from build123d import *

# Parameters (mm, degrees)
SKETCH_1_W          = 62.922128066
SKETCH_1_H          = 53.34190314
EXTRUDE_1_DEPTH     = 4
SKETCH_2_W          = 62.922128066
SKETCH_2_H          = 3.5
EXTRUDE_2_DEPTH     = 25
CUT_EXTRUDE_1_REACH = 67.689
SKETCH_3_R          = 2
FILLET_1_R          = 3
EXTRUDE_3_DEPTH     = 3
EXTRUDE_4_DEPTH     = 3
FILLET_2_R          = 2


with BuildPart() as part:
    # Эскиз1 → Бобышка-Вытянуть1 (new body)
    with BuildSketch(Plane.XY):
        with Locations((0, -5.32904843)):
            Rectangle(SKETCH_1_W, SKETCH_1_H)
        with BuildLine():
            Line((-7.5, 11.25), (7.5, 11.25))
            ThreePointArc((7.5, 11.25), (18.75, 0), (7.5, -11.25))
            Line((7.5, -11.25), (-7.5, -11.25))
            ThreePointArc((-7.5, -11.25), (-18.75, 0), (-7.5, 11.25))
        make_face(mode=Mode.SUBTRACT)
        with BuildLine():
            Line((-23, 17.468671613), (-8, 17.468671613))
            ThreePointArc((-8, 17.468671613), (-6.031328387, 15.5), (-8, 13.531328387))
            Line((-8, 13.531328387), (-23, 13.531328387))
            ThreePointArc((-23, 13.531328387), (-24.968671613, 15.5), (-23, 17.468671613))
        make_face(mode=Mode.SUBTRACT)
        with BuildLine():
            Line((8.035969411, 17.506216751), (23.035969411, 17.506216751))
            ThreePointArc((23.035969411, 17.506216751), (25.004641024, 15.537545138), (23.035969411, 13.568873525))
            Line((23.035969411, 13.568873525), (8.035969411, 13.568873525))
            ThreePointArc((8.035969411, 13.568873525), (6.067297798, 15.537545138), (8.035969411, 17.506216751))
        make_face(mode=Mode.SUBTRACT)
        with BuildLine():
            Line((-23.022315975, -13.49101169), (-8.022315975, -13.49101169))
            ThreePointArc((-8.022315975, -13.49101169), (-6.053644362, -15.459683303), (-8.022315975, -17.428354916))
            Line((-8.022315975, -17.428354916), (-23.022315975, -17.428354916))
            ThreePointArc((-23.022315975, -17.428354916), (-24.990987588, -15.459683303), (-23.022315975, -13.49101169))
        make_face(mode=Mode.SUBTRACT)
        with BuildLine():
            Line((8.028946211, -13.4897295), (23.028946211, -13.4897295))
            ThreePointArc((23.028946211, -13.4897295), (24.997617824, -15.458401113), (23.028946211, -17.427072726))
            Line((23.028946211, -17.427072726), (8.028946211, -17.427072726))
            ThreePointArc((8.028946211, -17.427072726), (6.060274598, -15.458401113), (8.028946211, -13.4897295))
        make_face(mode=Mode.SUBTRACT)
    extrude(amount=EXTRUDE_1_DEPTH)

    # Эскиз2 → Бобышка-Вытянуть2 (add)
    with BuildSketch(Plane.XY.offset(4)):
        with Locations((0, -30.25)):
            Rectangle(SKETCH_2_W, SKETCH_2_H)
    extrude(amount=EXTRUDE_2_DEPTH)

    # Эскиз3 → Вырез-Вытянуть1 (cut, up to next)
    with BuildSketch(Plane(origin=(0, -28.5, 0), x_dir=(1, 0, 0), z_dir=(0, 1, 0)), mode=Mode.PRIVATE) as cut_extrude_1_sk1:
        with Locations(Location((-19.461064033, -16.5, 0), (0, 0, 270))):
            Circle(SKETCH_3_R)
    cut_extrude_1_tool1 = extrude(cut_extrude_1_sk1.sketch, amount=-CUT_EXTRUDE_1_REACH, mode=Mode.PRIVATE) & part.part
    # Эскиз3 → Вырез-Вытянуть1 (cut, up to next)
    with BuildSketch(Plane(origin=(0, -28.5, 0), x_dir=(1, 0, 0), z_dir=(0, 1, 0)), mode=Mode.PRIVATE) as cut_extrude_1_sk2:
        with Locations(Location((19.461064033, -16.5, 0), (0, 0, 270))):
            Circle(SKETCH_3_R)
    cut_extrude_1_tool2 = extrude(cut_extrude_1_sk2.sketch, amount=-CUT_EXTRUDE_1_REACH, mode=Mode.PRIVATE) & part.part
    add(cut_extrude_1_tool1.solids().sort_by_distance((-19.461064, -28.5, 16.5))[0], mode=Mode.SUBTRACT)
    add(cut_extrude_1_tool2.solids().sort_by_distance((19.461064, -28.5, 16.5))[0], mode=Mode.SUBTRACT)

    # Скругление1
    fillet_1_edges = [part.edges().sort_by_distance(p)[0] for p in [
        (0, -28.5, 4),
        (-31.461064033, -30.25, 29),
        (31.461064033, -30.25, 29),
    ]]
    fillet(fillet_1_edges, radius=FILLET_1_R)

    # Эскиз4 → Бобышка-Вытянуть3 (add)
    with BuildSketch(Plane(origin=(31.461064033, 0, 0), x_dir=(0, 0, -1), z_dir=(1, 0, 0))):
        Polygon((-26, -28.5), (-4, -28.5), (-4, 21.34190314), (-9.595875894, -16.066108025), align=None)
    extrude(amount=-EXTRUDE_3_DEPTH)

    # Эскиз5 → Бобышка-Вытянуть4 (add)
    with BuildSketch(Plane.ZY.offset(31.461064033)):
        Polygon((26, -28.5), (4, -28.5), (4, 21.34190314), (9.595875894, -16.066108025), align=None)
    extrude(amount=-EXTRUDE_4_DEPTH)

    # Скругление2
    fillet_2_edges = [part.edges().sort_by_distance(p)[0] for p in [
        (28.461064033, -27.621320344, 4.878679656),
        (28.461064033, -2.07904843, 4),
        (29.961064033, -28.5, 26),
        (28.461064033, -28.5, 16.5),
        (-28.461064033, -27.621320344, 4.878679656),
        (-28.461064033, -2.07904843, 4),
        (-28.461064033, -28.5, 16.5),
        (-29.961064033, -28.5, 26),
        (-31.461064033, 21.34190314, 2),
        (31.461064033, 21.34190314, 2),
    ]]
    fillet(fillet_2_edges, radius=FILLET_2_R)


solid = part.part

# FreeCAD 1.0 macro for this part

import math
import FreeCAD as App
import Part
import Sketcher
from FreeCAD import Vector


def edges_at(feature, points):
    """Names of the edges that pass closest to the given points."""
    edges = feature.Shape.Edges
    near = lambda p: min(range(len(edges)), key=lambda i: edges[i].distToShape(Part.Vertex(*p))[0])
    return sorted({f"Edge{near(p) + 1}" for p in points})

doc = App.newDocument("Part")
body = doc.addObject("PartDesign::Body", "Body")

# Sketch on XY plane
sketch1 = doc.addObject("Sketcher::SketchObject", "Sketch")
body.addObject(sketch1)
sketch1.AttachmentSupport = (doc.XY_Plane, [""])
sketch1.MapMode = "FlatFace"
sketch1.addGeometry([
    Part.LineSegment(Vector(-31.461064, 21.341903, 0), Vector(-31.461064, -32, 0)),  # 0
    Part.LineSegment(Vector(-31.461064, -32, 0), Vector(31.461064, -32, 0)),  # 1
    Part.LineSegment(Vector(31.461064, -32, 0), Vector(31.461064, 21.341903, 0)),  # 2
    Part.LineSegment(Vector(31.461064, 21.341903, 0), Vector(-31.461064, 21.341903, 0)),  # 3
    Part.ArcOfCircle(Part.Circle(Vector(-23.022316, -15.459683, 0), Vector(0, 0, 1), 1.968672), math.radians(90), math.radians(270)),  # 4
    Part.LineSegment(Vector(-23.022316, -13.491012, 0), Vector(-8.022316, -13.491012, 0)),  # 5
    Part.ArcOfCircle(Part.Circle(Vector(-8.022316, -15.459683, 0), Vector(0, 0, 1), 1.968672), math.radians(-90), math.radians(90)),  # 6
    Part.LineSegment(Vector(-8.022316, -17.428355, 0), Vector(-23.022316, -17.428355, 0)),  # 7
    Part.ArcOfCircle(Part.Circle(Vector(-7.5, 0, 0), Vector(0, 0, 1), 11.25), math.radians(90), math.radians(270)),  # 8
    Part.LineSegment(Vector(-7.5, 11.25, 0), Vector(7.5, 11.25, 0)),  # 9
    Part.ArcOfCircle(Part.Circle(Vector(7.5, 0, 0), Vector(0, 0, 1), 11.25), math.radians(-90), math.radians(90)),  # 10
    Part.LineSegment(Vector(7.5, -11.25, 0), Vector(-7.5, -11.25, 0)),  # 11
    Part.ArcOfCircle(Part.Circle(Vector(8.028946, -15.458401, 0), Vector(0, 0, 1), 1.968672), math.radians(90), math.radians(270)),  # 12
    Part.LineSegment(Vector(8.028946, -13.489729, 0), Vector(23.028946, -13.489729, 0)),  # 13
    Part.ArcOfCircle(Part.Circle(Vector(23.028946, -15.458401, 0), Vector(0, 0, 1), 1.968672), math.radians(-90), math.radians(90)),  # 14
    Part.LineSegment(Vector(23.028946, -17.427073, 0), Vector(8.028946, -17.427073, 0)),  # 15
    Part.ArcOfCircle(Part.Circle(Vector(-23, 15.5, 0), Vector(0, 0, 1), 1.968672), math.radians(90), math.radians(270)),  # 16
    Part.LineSegment(Vector(-23, 17.468672, 0), Vector(-8, 17.468672, 0)),  # 17
    Part.ArcOfCircle(Part.Circle(Vector(-8, 15.5, 0), Vector(0, 0, 1), 1.968672), math.radians(-90), math.radians(90)),  # 18
    Part.LineSegment(Vector(-8, 13.531328, 0), Vector(-23, 13.531328, 0)),  # 19
    Part.ArcOfCircle(Part.Circle(Vector(8.035969, 15.537545, 0), Vector(0, 0, 1), 1.968672), math.radians(90), math.radians(270)),  # 20
    Part.LineSegment(Vector(8.035969, 17.506217, 0), Vector(23.035969, 17.506217, 0)),  # 21
    Part.ArcOfCircle(Part.Circle(Vector(23.035969, 15.537545, 0), Vector(0, 0, 1), 1.968672), math.radians(-90), math.radians(90)),  # 22
    Part.LineSegment(Vector(23.035969, 13.568874, 0), Vector(8.035969, 13.568874, 0)),  # 23
], False)
sketch1.addConstraint([
    Sketcher.Constraint("Coincident", 0, 2, 1, 1),
    Sketcher.Constraint("Coincident", 1, 2, 2, 1),
    Sketcher.Constraint("Coincident", 2, 2, 3, 1),
    Sketcher.Constraint("Coincident", 3, 2, 0, 1),
    Sketcher.Constraint("Tangent", 4, 1, 5, 1),
    Sketcher.Constraint("Tangent", 5, 2, 6, 2),
    Sketcher.Constraint("Tangent", 6, 1, 7, 1),
    Sketcher.Constraint("Tangent", 7, 2, 4, 2),
    Sketcher.Constraint("Tangent", 8, 1, 9, 1),
    Sketcher.Constraint("Tangent", 9, 2, 10, 2),
    Sketcher.Constraint("Tangent", 10, 1, 11, 1),
    Sketcher.Constraint("Tangent", 11, 2, 8, 2),
    Sketcher.Constraint("Tangent", 12, 1, 13, 1),
    Sketcher.Constraint("Tangent", 13, 2, 14, 2),
    Sketcher.Constraint("Tangent", 14, 1, 15, 1),
    Sketcher.Constraint("Tangent", 15, 2, 12, 2),
    Sketcher.Constraint("Tangent", 16, 1, 17, 1),
    Sketcher.Constraint("Tangent", 17, 2, 18, 2),
    Sketcher.Constraint("Tangent", 18, 1, 19, 1),
    Sketcher.Constraint("Tangent", 19, 2, 16, 2),
    Sketcher.Constraint("Tangent", 20, 1, 21, 1),
    Sketcher.Constraint("Tangent", 21, 2, 22, 2),
    Sketcher.Constraint("Tangent", 22, 1, 23, 1),
    Sketcher.Constraint("Tangent", 23, 2, 20, 2),
    Sketcher.Constraint("Vertical", 0),
    Sketcher.Constraint("Horizontal", 1),
    Sketcher.Constraint("Vertical", 2),
    Sketcher.Constraint("Horizontal", 3),
    Sketcher.Constraint("Horizontal", 5),
    Sketcher.Constraint("Horizontal", 7),
    Sketcher.Constraint("Horizontal", 9),
    Sketcher.Constraint("Horizontal", 11),
    Sketcher.Constraint("Horizontal", 13),
    Sketcher.Constraint("Horizontal", 15),
    Sketcher.Constraint("Horizontal", 17),
    Sketcher.Constraint("Horizontal", 19),
    Sketcher.Constraint("Horizontal", 21),
    Sketcher.Constraint("Horizontal", 23),
    Sketcher.Constraint("Equal", 6, 12),
    Sketcher.Constraint("Equal", 14, 16),
    Sketcher.Constraint("Equal", 18, 20),
    Sketcher.Constraint("Symmetric", 8, 3, 10, 3, -1, 1),
    Sketcher.Constraint("Equal", 7, 9),
    Sketcher.Constraint("Equal", 11, 13),
    Sketcher.Constraint("Equal", 15, 17),
    Sketcher.Constraint("Equal", 19, 21),
    Sketcher.Constraint("DistanceX", 5, 1, 5, 2, 15.0),
    Sketcher.Constraint("Radius", 8, 11.25),
    Sketcher.Constraint("DistanceX", 16, 3, -1, 1, 23.0),
    Sketcher.Constraint("DistanceY", 0, 2, -1, 1, 32.0),
    Sketcher.Constraint("DistanceY", -1, 1, 16, 3, 15.5),
    Sketcher.Constraint("Radius", 4, 1.968672),
    Sketcher.Constraint("DistanceX", 1, 1, 1, 2, 62.922128),
    Sketcher.Constraint("DistanceY", 12, 3, -1, 1, 15.458401),
    Sketcher.Constraint("DistanceY", 0, 2, 0, 1, 53.341903),
    Sketcher.Constraint("DistanceX", -1, 1, 20, 3, 8.035969),
    Sketcher.Constraint("DistanceY", 4, 1, -1, 1, 13.491012),
    Sketcher.Constraint("DistanceX", 0, 2, 4, 3, 8.438748),
    Sketcher.Constraint("DistanceX", 0, 2, 12, 3, 39.49001),
    Sketcher.Constraint("DistanceY", 22, 3, 2, 2, 5.804358),
    Sketcher.Constraint("DistanceX", 4, 3, -1, 1, 23.022316),
])
pad1 = doc.addObject("PartDesign::Pad", "Pad")
body.addObject(pad1)
pad1.Profile = sketch1
pad1.Length = 4

# Sketch on XY plane
sketch2 = doc.addObject("Sketcher::SketchObject", "Sketch001")
body.addObject(sketch2)
sketch2.AttachmentSupport = (doc.XY_Plane, [""])
sketch2.MapMode = "FlatFace"
sketch2.AttachmentOffset = App.Placement(Vector(0, 0, 4), App.Rotation())
sketch2.addGeometry([
    Part.LineSegment(Vector(-31.461064, -28.5, 0), Vector(-31.461064, -32, 0)),
    Part.LineSegment(Vector(-31.461064, -32, 0), Vector(31.461064, -32, 0)),
    Part.LineSegment(Vector(31.461064, -32, 0), Vector(31.461064, -28.5, 0)),
    Part.LineSegment(Vector(31.461064, -28.5, 0), Vector(-31.461064, -28.5, 0)),
], False)
sketch2.addConstraint([
    Sketcher.Constraint("Coincident", 0, 2, 1, 1),
    Sketcher.Constraint("Coincident", 1, 2, 2, 1),
    Sketcher.Constraint("Coincident", 2, 2, 3, 1),
    Sketcher.Constraint("Coincident", 3, 2, 0, 1),
    Sketcher.Constraint("Vertical", 0),
    Sketcher.Constraint("Horizontal", 1),
    Sketcher.Constraint("Vertical", 2),
    Sketcher.Constraint("Horizontal", 3),
    Sketcher.Constraint("DistanceY", 0, 2, 0, 1, 3.5),
    Sketcher.Constraint("DistanceY", 0, 2, -1, 1, 32.0),
    Sketcher.Constraint("DistanceX", 1, 1, 1, 2, 62.922128),
    Sketcher.Constraint("DistanceX", 0, 2, -1, 1, 31.461064),
])
pad2 = doc.addObject("PartDesign::Pad", "Pad001")
body.addObject(pad2)
pad2.Profile = sketch2
pad2.Length = 25

# Sketch on XZ plane
sketch3 = doc.addObject("Sketcher::SketchObject", "Sketch002")
body.addObject(sketch3)
sketch3.AttachmentSupport = (doc.XZ_Plane, [""])
sketch3.MapMode = "FlatFace"
sketch3.AttachmentOffset = App.Placement(Vector(0, 0, 28.5), App.Rotation())
sketch3.addGeometry(Part.Circle(Vector(-19.461064, 16.5, 0), Vector(0, 0, 1), 2), False)
sketch3.addConstraint([
    Sketcher.Constraint("Diameter", 0, 4.0),
    Sketcher.Constraint("DistanceY", -1, 1, 0, 3, 16.5),
    Sketcher.Constraint("DistanceX", 0, 3, -1, 1, 19.461064),
])
pocket1 = doc.addObject("PartDesign::Pocket", "Pocket")
body.addObject(pocket1)
pocket1.Profile = sketch3
pocket1.Type = "UpToFirst"
pocket1.Reversed = True

# Sketch on XZ plane
sketch4 = doc.addObject("Sketcher::SketchObject", "Sketch003")
body.addObject(sketch4)
sketch4.AttachmentSupport = (doc.XZ_Plane, [""])
sketch4.MapMode = "FlatFace"
sketch4.AttachmentOffset = App.Placement(Vector(0, 0, 28.5), App.Rotation())
sketch4.addGeometry(Part.Circle(Vector(19.461064, 16.5, 0), Vector(0, 0, 1), 2), False)
sketch4.addConstraint([
    Sketcher.Constraint("Diameter", 0, 4.0),
    Sketcher.Constraint("DistanceY", -1, 1, 0, 3, 16.5),
    Sketcher.Constraint("DistanceX", -1, 1, 0, 3, 19.461064),
])
pocket2 = doc.addObject("PartDesign::Pocket", "Pocket001")
body.addObject(pocket2)
pocket2.Profile = sketch4
pocket2.Type = "UpToFirst"
pocket2.Reversed = True
doc.recompute()

fillet = doc.addObject("PartDesign::Fillet", "Fillet")
body.addObject(fillet)
fillet.Base = (pocket2, edges_at(pocket2, [(0, -28.5, 4), (-31.461, -30.25, 29), (31.461, -30.25, 29)]))
fillet.Radius = 3

# Sketch on YZ plane
sketch5 = doc.addObject("Sketcher::SketchObject", "Sketch004")
body.addObject(sketch5)
sketch5.AttachmentSupport = (doc.YZ_Plane, [""])
sketch5.MapMode = "FlatFace"
sketch5.AttachmentOffset = App.Placement(Vector(0, 0, 31.461064), App.Rotation())
sketch5.addGeometry([
    Part.LineSegment(Vector(-28.5, 26, 0), Vector(-28.5, 4, 0)),
    Part.LineSegment(Vector(-28.5, 4, 0), Vector(21.341903, 4, 0)),
    Part.LineSegment(Vector(21.341903, 4, 0), Vector(-16.066108, 9.595876, 0)),
    Part.LineSegment(Vector(-16.066108, 9.595876, 0), Vector(-28.5, 26, 0)),
], False)
sketch5.addConstraint([
    Sketcher.Constraint("Coincident", 0, 2, 1, 1),
    Sketcher.Constraint("Coincident", 1, 2, 2, 1),
    Sketcher.Constraint("Coincident", 2, 2, 3, 1),
    Sketcher.Constraint("Coincident", 3, 2, 0, 1),
    Sketcher.Constraint("Vertical", 0),
    Sketcher.Constraint("Horizontal", 1),
    Sketcher.Constraint("DistanceY", 0, 2, 0, 1, 22.0),
    Sketcher.Constraint("DistanceY", -1, 1, 0, 2, 4.0),
    Sketcher.Constraint("DistanceX", 0, 2, -1, 1, 28.5),
    Sketcher.Constraint("Distance", 3, 20.5839),
    Sketcher.Constraint("Distance", 2, 37.82424),
    Sketcher.Constraint("DistanceX", 1, 1, 1, 2, 49.841903),
])
pad3 = doc.addObject("PartDesign::Pad", "Pad002")
body.addObject(pad3)
pad3.Profile = sketch5
pad3.Length = 3
pad3.Reversed = True

# Sketch on YZ plane
sketch6 = doc.addObject("Sketcher::SketchObject", "Sketch005")
body.addObject(sketch6)
sketch6.AttachmentSupport = (doc.YZ_Plane, [""])
sketch6.MapMode = "FlatFace"
sketch6.AttachmentOffset = App.Placement(Vector(0, 0, -31.461064), App.Rotation())
sketch6.addGeometry([
    Part.LineSegment(Vector(-28.5, 4, 0), Vector(-28.5, 26, 0)),
    Part.LineSegment(Vector(-28.5, 26, 0), Vector(-16.066108, 9.595876, 0)),
    Part.LineSegment(Vector(-16.066108, 9.595876, 0), Vector(21.341903, 4, 0)),
    Part.LineSegment(Vector(21.341903, 4, 0), Vector(-28.5, 4, 0)),
], False)
sketch6.addConstraint([
    Sketcher.Constraint("Coincident", 0, 2, 1, 1),
    Sketcher.Constraint("Coincident", 1, 2, 2, 1),
    Sketcher.Constraint("Coincident", 2, 2, 3, 1),
    Sketcher.Constraint("Coincident", 3, 2, 0, 1),
    Sketcher.Constraint("Vertical", 0),
    Sketcher.Constraint("Horizontal", 3),
    Sketcher.Constraint("DistanceY", 0, 1, 0, 2, 22.0),
    Sketcher.Constraint("DistanceY", -1, 1, 0, 2, 26.0),
    Sketcher.Constraint("DistanceX", 0, 2, -1, 1, 28.5),
    Sketcher.Constraint("Distance", 1, 20.5839),
    Sketcher.Constraint("Distance", 2, 37.82424),
    Sketcher.Constraint("DistanceX", 3, 2, 3, 1, 49.841903),
])
pad4 = doc.addObject("PartDesign::Pad", "Pad003")
body.addObject(pad4)
pad4.Profile = sketch6
pad4.Length = 3
doc.recompute()

fillet2 = doc.addObject("PartDesign::Fillet", "Fillet001")
body.addObject(fillet2)
fillet2.Base = (pad4, edges_at(pad4, [
    (28.461, -27.621, 4.879),
    (28.461, -2.079, 4),
    (29.961, -28.5, 26),
    (28.461, -28.5, 16.5),
    (-28.461, -27.621, 4.879),
    (-28.461, -2.079, 4),
    (-28.461, -28.5, 16.5),
    (-29.961, -28.5, 26),
    (-31.461, 21.342, 2),
    (31.461, 21.342, 2),
]))
fillet2.Radius = 2

doc.recompute()
